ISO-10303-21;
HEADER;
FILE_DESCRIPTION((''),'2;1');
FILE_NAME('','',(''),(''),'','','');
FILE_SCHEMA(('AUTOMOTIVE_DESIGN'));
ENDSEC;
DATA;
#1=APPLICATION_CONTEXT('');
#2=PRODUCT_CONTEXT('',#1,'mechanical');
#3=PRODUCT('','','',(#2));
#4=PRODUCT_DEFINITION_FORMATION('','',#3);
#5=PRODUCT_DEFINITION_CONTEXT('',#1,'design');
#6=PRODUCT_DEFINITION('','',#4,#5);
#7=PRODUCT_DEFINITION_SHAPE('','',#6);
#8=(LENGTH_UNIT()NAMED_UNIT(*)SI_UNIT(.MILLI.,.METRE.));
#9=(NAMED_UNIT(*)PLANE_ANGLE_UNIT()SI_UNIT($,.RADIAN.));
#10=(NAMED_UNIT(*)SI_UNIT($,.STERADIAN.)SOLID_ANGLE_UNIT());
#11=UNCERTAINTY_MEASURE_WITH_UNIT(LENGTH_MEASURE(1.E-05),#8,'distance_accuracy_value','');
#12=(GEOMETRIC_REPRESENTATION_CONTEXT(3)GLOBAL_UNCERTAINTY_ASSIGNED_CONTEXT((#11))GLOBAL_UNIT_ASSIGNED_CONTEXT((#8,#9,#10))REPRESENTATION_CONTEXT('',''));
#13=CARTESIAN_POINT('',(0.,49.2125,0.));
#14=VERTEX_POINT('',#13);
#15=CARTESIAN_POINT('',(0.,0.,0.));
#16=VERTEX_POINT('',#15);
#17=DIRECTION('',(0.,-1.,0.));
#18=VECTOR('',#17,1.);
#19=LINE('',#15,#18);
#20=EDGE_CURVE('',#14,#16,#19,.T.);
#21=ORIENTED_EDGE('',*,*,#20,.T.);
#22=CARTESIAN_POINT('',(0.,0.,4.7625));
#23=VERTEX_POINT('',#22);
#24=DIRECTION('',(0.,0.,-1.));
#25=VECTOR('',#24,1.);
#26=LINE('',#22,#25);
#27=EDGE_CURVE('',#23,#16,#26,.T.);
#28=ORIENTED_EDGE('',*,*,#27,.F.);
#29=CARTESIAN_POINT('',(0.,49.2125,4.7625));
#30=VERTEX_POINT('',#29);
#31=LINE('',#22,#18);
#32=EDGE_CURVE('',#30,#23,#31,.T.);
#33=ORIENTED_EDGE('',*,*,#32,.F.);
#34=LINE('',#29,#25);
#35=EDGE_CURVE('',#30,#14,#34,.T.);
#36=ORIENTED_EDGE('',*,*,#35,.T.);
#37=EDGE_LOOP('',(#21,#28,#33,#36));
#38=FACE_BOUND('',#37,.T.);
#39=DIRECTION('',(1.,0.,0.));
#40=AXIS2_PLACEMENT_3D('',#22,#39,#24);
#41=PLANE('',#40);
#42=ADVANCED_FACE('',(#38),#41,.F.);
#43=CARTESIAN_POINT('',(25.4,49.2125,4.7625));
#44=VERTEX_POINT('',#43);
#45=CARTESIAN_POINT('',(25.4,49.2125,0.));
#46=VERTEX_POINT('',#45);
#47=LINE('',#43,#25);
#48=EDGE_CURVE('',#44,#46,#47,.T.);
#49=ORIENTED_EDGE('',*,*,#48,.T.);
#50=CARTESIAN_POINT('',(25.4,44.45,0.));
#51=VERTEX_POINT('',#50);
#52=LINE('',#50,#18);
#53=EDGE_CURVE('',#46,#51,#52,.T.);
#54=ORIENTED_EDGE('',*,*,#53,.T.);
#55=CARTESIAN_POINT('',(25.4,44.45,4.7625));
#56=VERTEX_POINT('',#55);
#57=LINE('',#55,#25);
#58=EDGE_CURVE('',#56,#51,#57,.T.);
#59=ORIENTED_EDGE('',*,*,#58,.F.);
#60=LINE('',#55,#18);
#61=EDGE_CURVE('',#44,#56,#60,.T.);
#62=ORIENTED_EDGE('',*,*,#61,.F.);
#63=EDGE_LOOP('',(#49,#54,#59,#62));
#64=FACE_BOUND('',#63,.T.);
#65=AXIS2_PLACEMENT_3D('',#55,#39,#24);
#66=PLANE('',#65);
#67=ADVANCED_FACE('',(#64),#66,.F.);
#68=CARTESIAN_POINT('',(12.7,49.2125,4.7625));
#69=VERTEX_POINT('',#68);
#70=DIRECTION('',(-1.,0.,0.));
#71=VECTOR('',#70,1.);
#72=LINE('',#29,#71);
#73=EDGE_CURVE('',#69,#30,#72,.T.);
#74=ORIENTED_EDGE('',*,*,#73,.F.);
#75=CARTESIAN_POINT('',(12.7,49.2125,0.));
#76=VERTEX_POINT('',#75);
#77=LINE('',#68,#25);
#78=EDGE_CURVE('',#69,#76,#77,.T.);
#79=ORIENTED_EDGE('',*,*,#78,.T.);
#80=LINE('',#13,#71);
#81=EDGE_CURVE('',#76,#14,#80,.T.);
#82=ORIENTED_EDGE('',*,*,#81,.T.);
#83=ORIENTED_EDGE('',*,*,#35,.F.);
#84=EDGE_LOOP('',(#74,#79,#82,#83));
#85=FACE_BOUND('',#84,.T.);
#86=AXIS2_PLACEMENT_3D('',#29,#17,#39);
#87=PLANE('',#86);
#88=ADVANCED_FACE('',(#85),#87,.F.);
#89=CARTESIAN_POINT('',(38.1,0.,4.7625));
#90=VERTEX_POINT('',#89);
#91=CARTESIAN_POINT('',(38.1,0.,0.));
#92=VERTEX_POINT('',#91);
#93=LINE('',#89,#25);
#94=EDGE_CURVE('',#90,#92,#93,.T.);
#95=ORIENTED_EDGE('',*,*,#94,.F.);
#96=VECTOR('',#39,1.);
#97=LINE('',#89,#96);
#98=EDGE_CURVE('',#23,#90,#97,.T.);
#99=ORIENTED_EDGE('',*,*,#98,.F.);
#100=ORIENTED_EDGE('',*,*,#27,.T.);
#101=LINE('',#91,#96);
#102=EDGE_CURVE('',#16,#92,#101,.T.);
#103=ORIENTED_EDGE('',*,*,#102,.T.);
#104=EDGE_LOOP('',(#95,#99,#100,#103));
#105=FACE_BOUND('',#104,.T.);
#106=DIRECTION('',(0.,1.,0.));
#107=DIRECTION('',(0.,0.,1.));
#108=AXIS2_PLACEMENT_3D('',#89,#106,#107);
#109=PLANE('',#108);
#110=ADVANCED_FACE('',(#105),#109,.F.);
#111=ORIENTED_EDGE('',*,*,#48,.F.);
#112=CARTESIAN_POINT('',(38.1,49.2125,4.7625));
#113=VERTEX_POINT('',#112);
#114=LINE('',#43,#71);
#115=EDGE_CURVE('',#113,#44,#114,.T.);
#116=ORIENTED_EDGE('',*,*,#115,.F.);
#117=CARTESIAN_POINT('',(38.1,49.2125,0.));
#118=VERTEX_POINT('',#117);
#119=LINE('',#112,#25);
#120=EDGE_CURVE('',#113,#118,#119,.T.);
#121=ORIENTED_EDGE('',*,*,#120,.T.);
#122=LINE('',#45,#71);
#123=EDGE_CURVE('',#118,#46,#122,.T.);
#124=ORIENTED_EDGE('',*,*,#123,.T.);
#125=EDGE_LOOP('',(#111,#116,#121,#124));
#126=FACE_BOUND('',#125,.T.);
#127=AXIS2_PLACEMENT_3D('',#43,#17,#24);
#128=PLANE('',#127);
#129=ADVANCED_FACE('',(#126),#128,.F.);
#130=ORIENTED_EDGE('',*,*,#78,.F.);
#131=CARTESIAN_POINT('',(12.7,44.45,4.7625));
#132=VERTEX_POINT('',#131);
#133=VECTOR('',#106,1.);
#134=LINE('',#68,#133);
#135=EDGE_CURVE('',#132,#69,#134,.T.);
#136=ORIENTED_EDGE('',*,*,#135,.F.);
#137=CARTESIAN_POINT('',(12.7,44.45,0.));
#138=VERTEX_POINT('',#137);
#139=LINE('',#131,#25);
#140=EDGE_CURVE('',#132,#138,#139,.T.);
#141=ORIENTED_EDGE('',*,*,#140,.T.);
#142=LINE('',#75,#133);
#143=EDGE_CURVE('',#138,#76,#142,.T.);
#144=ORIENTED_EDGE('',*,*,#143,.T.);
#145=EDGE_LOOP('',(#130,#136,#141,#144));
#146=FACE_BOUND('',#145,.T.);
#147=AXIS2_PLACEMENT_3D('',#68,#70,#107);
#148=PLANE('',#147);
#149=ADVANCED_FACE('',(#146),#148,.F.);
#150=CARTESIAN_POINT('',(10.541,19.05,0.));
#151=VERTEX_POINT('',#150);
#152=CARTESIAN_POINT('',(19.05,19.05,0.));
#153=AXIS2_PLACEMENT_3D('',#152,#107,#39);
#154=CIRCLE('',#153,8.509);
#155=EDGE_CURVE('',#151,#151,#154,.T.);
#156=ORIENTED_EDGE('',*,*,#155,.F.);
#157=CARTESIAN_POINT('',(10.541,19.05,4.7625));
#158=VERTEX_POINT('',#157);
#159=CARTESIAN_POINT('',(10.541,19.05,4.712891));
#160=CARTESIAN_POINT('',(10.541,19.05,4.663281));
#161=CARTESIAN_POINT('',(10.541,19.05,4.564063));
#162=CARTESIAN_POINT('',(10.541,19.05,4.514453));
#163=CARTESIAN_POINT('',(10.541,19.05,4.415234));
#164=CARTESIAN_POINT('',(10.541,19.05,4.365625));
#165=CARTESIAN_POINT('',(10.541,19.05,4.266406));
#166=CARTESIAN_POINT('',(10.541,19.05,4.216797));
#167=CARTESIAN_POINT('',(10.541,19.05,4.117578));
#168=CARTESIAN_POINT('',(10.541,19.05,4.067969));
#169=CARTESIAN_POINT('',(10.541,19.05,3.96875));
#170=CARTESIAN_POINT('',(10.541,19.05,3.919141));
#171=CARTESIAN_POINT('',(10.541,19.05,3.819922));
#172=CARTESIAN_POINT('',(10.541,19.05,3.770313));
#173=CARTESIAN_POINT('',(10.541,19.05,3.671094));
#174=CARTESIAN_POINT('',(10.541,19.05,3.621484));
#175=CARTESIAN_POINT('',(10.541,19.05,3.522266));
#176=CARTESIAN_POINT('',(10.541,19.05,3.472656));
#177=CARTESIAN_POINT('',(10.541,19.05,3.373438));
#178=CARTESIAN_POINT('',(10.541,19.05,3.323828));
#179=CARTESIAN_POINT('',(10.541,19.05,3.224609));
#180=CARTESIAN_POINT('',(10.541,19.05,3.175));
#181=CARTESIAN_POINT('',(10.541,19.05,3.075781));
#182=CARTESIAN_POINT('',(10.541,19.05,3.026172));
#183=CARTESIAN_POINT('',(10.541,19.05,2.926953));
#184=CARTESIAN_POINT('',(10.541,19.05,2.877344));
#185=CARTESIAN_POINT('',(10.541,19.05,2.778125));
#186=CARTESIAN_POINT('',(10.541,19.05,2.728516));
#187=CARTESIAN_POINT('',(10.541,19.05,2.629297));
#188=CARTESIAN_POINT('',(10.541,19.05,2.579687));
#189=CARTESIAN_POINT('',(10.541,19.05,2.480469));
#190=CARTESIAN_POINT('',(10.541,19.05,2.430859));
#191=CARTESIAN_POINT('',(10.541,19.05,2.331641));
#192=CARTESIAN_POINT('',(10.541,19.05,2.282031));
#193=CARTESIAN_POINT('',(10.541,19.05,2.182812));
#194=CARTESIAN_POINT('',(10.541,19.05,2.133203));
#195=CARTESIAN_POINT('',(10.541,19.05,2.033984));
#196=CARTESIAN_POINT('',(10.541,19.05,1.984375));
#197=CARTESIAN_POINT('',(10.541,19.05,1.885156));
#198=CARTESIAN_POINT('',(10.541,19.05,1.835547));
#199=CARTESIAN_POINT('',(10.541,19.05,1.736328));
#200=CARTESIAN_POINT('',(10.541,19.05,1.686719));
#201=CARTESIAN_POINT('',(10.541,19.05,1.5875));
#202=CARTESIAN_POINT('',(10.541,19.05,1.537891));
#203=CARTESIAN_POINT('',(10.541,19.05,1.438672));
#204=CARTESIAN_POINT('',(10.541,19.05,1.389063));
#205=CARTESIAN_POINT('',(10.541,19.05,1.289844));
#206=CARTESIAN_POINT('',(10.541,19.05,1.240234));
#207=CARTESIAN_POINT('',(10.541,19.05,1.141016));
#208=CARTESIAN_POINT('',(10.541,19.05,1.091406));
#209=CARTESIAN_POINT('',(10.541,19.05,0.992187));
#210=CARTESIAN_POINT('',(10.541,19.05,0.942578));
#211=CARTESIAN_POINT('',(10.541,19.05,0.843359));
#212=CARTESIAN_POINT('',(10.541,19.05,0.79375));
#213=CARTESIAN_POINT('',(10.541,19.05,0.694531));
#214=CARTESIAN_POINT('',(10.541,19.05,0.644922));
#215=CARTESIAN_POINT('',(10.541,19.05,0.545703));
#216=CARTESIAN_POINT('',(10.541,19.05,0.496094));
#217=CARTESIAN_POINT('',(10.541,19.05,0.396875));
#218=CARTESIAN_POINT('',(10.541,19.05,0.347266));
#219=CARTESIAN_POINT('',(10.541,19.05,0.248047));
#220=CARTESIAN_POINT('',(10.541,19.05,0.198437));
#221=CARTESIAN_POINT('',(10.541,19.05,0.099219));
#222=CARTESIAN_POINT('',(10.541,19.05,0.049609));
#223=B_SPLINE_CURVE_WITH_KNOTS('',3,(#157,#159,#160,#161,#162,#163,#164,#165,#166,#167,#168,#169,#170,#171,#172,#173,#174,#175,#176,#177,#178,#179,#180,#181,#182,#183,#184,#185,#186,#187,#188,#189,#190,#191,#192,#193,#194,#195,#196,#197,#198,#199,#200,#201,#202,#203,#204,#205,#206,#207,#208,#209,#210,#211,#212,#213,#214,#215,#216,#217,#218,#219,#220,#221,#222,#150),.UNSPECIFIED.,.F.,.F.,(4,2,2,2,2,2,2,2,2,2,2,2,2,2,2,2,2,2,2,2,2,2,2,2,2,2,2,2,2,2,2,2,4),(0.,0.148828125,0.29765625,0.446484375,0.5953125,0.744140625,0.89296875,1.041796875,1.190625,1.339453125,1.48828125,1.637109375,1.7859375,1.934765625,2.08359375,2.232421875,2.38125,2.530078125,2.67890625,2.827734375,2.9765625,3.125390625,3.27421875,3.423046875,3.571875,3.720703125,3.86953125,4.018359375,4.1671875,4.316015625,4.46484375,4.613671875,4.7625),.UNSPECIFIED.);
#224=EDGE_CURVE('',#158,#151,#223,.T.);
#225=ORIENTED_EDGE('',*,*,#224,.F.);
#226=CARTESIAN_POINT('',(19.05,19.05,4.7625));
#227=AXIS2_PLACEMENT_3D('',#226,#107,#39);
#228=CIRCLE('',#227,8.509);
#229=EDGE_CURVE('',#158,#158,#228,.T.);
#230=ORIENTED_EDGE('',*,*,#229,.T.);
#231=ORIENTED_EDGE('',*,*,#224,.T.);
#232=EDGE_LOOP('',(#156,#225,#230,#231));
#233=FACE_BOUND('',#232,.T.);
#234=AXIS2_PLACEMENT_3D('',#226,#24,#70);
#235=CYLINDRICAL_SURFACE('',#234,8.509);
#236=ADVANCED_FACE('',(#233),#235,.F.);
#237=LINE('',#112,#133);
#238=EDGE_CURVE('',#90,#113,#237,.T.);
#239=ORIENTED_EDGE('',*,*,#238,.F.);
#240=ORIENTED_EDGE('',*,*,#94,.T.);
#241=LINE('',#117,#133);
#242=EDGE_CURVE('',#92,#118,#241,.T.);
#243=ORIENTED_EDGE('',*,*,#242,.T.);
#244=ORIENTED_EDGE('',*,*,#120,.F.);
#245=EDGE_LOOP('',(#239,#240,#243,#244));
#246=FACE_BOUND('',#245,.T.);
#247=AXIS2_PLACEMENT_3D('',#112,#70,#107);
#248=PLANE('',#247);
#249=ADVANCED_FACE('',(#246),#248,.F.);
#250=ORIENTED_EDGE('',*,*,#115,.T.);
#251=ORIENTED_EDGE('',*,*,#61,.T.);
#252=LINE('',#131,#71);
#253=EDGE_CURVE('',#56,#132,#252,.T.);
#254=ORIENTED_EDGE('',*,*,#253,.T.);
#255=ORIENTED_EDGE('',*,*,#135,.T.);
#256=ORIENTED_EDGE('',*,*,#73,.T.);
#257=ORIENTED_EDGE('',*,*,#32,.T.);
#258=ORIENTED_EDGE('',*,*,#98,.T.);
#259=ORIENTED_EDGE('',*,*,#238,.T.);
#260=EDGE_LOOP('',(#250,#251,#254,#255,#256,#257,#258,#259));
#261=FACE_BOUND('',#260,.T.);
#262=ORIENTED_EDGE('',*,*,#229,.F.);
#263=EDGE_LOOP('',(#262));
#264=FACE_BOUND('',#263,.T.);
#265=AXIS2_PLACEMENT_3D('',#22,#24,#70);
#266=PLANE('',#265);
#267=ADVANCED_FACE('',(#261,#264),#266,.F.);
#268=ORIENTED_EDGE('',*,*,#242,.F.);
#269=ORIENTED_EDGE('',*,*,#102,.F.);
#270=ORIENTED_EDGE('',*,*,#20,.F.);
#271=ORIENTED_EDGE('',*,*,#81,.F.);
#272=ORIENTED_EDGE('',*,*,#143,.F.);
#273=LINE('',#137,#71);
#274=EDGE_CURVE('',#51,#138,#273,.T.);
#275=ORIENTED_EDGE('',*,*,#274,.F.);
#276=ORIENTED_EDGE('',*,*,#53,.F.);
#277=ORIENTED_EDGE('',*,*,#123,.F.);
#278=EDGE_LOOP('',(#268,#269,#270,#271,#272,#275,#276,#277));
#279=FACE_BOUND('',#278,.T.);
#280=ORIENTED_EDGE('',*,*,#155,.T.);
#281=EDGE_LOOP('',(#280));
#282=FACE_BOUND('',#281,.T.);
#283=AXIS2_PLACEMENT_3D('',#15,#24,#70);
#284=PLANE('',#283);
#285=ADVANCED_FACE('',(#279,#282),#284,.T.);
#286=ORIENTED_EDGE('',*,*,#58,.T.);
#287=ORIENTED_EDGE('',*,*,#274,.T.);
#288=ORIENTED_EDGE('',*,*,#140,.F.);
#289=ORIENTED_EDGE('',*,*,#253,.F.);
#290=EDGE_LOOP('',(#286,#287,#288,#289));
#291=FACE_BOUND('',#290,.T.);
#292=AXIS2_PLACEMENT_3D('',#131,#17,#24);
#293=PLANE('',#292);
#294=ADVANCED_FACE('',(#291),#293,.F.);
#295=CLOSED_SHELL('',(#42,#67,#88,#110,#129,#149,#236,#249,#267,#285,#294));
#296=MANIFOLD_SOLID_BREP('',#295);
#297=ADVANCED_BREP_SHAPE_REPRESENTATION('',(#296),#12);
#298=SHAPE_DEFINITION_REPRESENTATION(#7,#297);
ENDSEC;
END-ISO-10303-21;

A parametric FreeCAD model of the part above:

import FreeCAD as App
import Part
import Sketcher

V = App.Vector
Q = App.Units.Quantity

doc = App.newDocument("Part")
body = doc.addObject("PartDesign::Body", "Body")

# Sketch on XY plane
sketch1 = doc.addObject("Sketcher::SketchObject", "Sketch")
body.addObject(sketch1)
sketch1.AttachmentSupport = (doc.XY_Plane, [""])
sketch1.MapMode = "FlatFace"
sketch1.addGeometry(Part.LineSegment(V(0, 49.2125, 0), V(0, 0, 0)), False)
sketch1.addGeometry(Part.LineSegment(V(0, 0, 0), V(38.1, 0, 0)), False)
sketch1.addGeometry(Part.LineSegment(V(38.1, 0, 0), V(38.1, 49.2125, 0)), False)
sketch1.addGeometry(Part.LineSegment(V(38.1, 49.2125, 0), V(25.4, 49.2125, 0)), False)
sketch1.addGeometry(Part.LineSegment(V(25.4, 49.2125, 0), V(25.4, 44.45, 0)), False)
sketch1.addGeometry(Part.LineSegment(V(25.4, 44.45, 0), V(12.7, 44.45, 0)), False)
sketch1.addGeometry(Part.LineSegment(V(12.7, 44.45, 0), V(12.7, 49.2125, 0)), False)
sketch1.addGeometry(Part.LineSegment(V(12.7, 49.2125, 0), V(0, 49.2125, 0)), False)
sketch1.addGeometry(Part.Circle(V(19.05, 19.05, 0), V(0, 0, 1), 8.509), False)
sketch1.addConstraint(Sketcher.Constraint("Coincident", 0, 2, 1, 1))
sketch1.addConstraint(Sketcher.Constraint("Coincident", 1, 2, 2, 1))
sketch1.addConstraint(Sketcher.Constraint("Coincident", 2, 2, 3, 1))
sketch1.addConstraint(Sketcher.Constraint("Coincident", 3, 2, 4, 1))
sketch1.addConstraint(Sketcher.Constraint("Coincident", 4, 2, 5, 1))
sketch1.addConstraint(Sketcher.Constraint("Coincident", 5, 2, 6, 1))
sketch1.addConstraint(Sketcher.Constraint("Coincident", 6, 2, 7, 1))
sketch1.addConstraint(Sketcher.Constraint("Coincident", 7, 2, 0, 1))
sketch1.addConstraint(Sketcher.Constraint("Vertical", 0))
sketch1.addConstraint(Sketcher.Constraint("Horizontal", 1))
sketch1.addConstraint(Sketcher.Constraint("Vertical", 2))
sketch1.addConstraint(Sketcher.Constraint("Horizontal", 3))
sketch1.addConstraint(Sketcher.Constraint("Vertical", 4))
sketch1.addConstraint(Sketcher.Constraint("Horizontal", 5))
sketch1.addConstraint(Sketcher.Constraint("Vertical", 6))
sketch1.addConstraint(Sketcher.Constraint("Horizontal", 7))
sketch1.addConstraint(Sketcher.Constraint("Coincident", 0, 2, -1, 1))
sketch1.addConstraint(Sketcher.Constraint("Horizontal", 3, 2, 6, 2))
sketch1.addConstraint(Sketcher.Constraint("Equal", 3, 5))
sketch1.addConstraint(Sketcher.Constraint("Equal", 5, 7))
sketch1.addConstraint(Sketcher.Constraint("Diameter", 8, Q("0.67 in")))
sketch1.addConstraint(Sketcher.Constraint("DistanceX", 1, 1, 1, 2, Q("1.5 in")))
sketch1.addConstraint(Sketcher.Constraint("DistanceY", 8, 3, 4, 2, Q("1 in")))
sketch1.addConstraint(Sketcher.Constraint("DistanceY", 0, 2, 0, 1, Q("1.9375 in")))
sketch1.addConstraint(Sketcher.Constraint("DistanceY", 4, 2, 4, 1, Q("0.1875 in")))
sketch1.addConstraint(Sketcher.Constraint("DistanceX", -1, 1, 8, 3, Q("0.75 in")))
pad1 = doc.addObject("PartDesign::Pad", "Pad")
body.addObject(pad1)
pad1.Profile = sketch1
pad1.Length = Q("0.1875 in")

doc.recompute()
